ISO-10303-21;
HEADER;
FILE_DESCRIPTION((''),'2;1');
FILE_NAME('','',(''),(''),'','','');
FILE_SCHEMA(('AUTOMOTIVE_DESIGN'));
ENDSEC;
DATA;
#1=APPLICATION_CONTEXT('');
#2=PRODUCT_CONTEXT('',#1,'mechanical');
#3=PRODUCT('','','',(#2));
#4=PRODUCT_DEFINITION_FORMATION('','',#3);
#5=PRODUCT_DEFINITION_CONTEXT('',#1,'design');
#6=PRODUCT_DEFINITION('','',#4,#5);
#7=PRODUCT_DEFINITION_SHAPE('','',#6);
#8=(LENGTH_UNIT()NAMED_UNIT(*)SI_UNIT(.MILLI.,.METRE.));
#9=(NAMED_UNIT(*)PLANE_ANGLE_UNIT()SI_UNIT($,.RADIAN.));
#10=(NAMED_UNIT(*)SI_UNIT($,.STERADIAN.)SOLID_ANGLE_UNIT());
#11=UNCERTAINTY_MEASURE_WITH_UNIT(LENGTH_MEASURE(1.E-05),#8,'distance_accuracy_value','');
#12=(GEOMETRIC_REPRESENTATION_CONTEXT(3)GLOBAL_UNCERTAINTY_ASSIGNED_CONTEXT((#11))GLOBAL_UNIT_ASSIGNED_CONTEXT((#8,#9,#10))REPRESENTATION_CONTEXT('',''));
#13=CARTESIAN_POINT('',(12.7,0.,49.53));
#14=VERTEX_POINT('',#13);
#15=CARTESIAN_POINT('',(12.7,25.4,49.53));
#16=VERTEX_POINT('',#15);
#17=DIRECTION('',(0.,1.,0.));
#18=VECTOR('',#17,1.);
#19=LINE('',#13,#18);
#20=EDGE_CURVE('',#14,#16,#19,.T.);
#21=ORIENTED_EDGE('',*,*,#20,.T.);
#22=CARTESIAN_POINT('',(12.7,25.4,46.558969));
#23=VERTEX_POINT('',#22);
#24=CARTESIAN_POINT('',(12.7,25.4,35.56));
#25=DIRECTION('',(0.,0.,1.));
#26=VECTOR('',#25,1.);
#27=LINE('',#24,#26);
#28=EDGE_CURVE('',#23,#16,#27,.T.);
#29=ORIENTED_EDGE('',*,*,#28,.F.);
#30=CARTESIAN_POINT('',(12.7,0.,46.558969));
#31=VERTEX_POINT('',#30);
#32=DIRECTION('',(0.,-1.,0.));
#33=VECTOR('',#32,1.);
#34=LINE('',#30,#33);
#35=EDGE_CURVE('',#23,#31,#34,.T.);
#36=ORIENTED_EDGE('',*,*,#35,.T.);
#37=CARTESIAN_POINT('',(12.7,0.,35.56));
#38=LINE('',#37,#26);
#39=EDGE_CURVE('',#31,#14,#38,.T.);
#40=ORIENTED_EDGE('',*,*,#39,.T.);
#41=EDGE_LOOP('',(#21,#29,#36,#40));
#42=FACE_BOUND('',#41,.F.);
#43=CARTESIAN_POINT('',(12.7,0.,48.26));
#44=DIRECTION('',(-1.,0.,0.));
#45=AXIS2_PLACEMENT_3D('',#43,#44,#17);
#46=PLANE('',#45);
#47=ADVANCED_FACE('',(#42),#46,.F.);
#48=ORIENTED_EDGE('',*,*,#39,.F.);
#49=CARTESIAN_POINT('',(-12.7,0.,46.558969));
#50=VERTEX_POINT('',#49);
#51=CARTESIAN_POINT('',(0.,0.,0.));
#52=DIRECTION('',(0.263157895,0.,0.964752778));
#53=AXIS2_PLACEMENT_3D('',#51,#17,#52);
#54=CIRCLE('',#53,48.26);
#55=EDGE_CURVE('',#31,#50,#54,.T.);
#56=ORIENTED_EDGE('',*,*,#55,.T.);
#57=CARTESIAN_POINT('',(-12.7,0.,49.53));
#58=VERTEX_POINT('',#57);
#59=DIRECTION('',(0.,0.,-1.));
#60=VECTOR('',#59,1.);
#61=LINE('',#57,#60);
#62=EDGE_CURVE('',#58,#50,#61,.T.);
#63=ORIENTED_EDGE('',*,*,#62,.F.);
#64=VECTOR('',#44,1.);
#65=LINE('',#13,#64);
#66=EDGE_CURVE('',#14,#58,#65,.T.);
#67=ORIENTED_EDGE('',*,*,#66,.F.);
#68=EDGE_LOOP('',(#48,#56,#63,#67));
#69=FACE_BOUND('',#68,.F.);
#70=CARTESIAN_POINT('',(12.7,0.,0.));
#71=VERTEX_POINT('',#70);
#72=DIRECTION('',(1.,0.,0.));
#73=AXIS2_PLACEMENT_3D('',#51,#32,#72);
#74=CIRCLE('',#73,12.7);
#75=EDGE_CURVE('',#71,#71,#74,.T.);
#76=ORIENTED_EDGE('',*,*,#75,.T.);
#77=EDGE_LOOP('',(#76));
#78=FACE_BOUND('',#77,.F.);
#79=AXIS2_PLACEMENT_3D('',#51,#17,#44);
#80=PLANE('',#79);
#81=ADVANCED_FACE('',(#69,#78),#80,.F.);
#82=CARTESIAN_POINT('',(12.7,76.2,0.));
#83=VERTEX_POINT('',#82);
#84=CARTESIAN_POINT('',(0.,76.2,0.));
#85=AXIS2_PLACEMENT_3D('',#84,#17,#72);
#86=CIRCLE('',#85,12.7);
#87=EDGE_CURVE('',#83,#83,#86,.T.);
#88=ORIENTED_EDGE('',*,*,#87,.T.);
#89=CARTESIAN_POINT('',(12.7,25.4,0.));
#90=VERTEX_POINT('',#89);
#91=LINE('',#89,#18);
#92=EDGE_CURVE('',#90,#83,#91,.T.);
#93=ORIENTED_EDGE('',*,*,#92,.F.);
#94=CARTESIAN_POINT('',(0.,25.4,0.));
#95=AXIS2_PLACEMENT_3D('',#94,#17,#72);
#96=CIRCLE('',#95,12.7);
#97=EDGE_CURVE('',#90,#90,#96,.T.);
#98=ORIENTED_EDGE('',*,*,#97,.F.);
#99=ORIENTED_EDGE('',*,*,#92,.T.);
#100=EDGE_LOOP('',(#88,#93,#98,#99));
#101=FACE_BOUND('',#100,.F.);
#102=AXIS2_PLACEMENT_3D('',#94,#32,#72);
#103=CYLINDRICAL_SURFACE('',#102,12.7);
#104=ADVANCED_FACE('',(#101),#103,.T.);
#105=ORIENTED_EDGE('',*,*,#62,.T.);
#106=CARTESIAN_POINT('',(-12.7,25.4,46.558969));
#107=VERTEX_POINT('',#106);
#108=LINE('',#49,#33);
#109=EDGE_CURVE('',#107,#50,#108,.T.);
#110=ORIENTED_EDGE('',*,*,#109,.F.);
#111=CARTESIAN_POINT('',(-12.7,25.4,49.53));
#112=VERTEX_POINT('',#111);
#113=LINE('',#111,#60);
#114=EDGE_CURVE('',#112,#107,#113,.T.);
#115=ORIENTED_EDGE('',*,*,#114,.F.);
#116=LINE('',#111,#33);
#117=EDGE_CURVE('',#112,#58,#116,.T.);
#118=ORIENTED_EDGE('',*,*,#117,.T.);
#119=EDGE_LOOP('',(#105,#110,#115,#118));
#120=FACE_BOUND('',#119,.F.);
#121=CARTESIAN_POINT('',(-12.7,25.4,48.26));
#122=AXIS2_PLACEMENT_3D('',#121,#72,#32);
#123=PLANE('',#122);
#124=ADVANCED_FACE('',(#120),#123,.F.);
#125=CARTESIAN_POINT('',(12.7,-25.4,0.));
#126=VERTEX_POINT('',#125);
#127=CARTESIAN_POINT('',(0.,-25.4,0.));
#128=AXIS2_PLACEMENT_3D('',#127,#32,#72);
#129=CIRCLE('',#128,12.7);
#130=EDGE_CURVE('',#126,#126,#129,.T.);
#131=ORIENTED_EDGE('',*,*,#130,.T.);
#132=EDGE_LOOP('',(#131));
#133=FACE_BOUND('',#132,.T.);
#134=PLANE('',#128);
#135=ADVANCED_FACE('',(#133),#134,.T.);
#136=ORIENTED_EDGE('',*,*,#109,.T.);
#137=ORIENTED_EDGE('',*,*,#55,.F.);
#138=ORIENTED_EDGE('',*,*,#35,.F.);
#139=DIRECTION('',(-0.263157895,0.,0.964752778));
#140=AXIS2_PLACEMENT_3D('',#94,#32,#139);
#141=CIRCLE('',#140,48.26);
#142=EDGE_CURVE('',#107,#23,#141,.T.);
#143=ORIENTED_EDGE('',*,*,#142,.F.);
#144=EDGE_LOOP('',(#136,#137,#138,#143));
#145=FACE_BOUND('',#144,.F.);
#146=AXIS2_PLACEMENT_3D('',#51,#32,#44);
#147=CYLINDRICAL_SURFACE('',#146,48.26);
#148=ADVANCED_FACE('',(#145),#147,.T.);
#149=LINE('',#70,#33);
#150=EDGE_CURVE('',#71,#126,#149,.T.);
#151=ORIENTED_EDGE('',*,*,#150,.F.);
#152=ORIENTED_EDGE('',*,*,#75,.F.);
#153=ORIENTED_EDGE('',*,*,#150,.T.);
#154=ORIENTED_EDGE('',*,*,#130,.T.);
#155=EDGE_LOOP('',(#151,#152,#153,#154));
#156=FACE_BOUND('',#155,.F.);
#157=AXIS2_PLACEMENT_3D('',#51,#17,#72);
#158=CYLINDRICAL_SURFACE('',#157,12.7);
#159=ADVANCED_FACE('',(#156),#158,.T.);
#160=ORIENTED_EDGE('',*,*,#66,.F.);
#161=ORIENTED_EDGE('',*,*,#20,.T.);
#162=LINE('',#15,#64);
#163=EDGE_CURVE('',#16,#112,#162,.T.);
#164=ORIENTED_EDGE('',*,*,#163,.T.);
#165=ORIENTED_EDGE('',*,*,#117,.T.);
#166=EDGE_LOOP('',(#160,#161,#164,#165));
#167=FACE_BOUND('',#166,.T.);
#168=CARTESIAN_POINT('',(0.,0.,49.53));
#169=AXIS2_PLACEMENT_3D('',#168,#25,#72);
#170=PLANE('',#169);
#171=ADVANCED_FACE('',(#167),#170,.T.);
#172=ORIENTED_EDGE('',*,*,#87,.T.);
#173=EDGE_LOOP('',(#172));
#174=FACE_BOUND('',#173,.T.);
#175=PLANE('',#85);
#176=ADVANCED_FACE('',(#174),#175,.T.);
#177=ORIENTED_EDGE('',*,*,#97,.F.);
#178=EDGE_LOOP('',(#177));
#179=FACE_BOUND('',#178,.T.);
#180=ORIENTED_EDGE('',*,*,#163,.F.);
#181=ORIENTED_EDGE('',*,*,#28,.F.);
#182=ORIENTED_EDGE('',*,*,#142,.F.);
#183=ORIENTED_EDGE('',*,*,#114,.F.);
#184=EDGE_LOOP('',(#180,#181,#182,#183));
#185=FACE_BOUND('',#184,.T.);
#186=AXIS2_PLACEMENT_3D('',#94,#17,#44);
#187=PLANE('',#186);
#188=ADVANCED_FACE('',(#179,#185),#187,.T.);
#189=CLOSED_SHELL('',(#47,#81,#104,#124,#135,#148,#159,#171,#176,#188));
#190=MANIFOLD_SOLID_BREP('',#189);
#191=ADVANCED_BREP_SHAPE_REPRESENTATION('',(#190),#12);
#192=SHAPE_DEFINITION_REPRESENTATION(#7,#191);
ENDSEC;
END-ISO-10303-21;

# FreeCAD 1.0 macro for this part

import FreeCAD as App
import Part
import Sketcher
Q = App.Units.Quantity


def add_polygon(sketch, points):
    """Adds a closed chain of lines whose ends are joined by coincident constraints."""
    first, n = sketch.GeometryCount, len(points)
    for a, b in zip(points, points[1:] + points[:1]):
        sketch.addGeometry(Part.LineSegment(App.Vector(*a, 0), App.Vector(*b, 0)), False)
    for i in range(n):
        sketch.addConstraint(Sketcher.Constraint("Coincident", first + i, 2, first + (i + 1) % n, 1))

doc = App.newDocument("Part")
body = doc.addObject("PartDesign::Body", "Body")

# Sketch on XZ plane
sketch1 = doc.addObject("Sketcher::SketchObject", "Sketch")
body.addObject(sketch1)
sketch1.AttachmentSupport = (doc.XZ_Plane, [""])
sketch1.MapMode = "FlatFace"
sketch1.addGeometry(Part.Circle(App.Vector(0, 0, 0), App.Vector(0, 0, 1), 48), False)
sketch1.addConstraint(Sketcher.Constraint("Coincident", 0, 3, -1, 1))
sketch1.addConstraint(Sketcher.Constraint("Diameter", 0, Q("3.8 in")))
pad1 = doc.addObject("PartDesign::Pad", "Pad")
body.addObject(pad1)
pad1.Profile = sketch1
pad1.Length = Q("1 in")
pad1.Reversed = True

# Sketch on XZ plane
sketch2 = doc.addObject("Sketcher::SketchObject", "Sketch001")
body.addObject(sketch2)
sketch2.AttachmentSupport = (doc.XZ_Plane, [""])
sketch2.MapMode = "FlatFace"
sketch2.AttachmentOffset = App.Placement(App.Vector(0, 0, -1 * 25.4), App.Rotation())
sketch2.addGeometry(Part.Circle(App.Vector(0, 0, 0), App.Vector(0, 0, 1), 13), False)
sketch2.addConstraint(Sketcher.Constraint("Coincident", 0, 3, -1, 1))
sketch2.addConstraint(Sketcher.Constraint("Diameter", 0, Q("1 in")))
pad2 = doc.addObject("PartDesign::Pad", "Pad001")
body.addObject(pad2)
pad2.Profile = sketch2
pad2.Length = Q("2 in")
pad2.Reversed = True

# Sketch on XZ plane
sketch3 = doc.addObject("Sketcher::SketchObject", "Sketch002")
body.addObject(sketch3)
sketch3.AttachmentSupport = (doc.XZ_Plane, [""])
sketch3.MapMode = "FlatFace"
sketch3.addGeometry(Part.Circle(App.Vector(0, 0, 0), App.Vector(0, 0, 1), 13), False)
sketch3.addConstraint(Sketcher.Constraint("Coincident", 0, 3, -1, 1))
sketch3.addConstraint(Sketcher.Constraint("Diameter", 0, Q("1 in")))
pad3 = doc.addObject("PartDesign::Pad", "Pad002")
body.addObject(pad3)
pad3.Profile = sketch3
pad3.Length = Q("1 in")

# Sketch on XY plane
sketch4 = doc.addObject("Sketcher::SketchObject", "Sketch003")
body.addObject(sketch4)
sketch4.AttachmentSupport = (doc.XY_Plane, [""])
sketch4.MapMode = "FlatFace"
sketch4.AttachmentOffset = App.Placement(App.Vector(0, 0, 1.9 * 25.4), App.Rotation())
add_polygon(sketch4, [(-13, 0), (13, 0), (13, 25), (-13, 25)])  # lines 0-3
sketch4.addConstraint(Sketcher.Constraint("Horizontal", 0))
sketch4.addConstraint(Sketcher.Constraint("Vertical", 1))
sketch4.addConstraint(Sketcher.Constraint("Horizontal", 2))
sketch4.addConstraint(Sketcher.Constraint("Vertical", 3))
sketch4.addConstraint(Sketcher.Constraint("Symmetric", 0, 2, 3, 2, -1, 1))
sketch4.addConstraint(Sketcher.Constraint("Equal", 2, 1))
sketch4.addConstraint(Sketcher.Constraint("DistanceX", 0, 1, 0, 2, Q("1 in")))
pad4 = doc.addObject("PartDesign::Pad", "Pad003")
body.addObject(pad4)
pad4.Profile = sketch4
pad4.Type = "TwoLengths"
pad4.Length = Q("0.05 in")
pad4.Length2 = Q("0.5 in")

doc.recompute()
